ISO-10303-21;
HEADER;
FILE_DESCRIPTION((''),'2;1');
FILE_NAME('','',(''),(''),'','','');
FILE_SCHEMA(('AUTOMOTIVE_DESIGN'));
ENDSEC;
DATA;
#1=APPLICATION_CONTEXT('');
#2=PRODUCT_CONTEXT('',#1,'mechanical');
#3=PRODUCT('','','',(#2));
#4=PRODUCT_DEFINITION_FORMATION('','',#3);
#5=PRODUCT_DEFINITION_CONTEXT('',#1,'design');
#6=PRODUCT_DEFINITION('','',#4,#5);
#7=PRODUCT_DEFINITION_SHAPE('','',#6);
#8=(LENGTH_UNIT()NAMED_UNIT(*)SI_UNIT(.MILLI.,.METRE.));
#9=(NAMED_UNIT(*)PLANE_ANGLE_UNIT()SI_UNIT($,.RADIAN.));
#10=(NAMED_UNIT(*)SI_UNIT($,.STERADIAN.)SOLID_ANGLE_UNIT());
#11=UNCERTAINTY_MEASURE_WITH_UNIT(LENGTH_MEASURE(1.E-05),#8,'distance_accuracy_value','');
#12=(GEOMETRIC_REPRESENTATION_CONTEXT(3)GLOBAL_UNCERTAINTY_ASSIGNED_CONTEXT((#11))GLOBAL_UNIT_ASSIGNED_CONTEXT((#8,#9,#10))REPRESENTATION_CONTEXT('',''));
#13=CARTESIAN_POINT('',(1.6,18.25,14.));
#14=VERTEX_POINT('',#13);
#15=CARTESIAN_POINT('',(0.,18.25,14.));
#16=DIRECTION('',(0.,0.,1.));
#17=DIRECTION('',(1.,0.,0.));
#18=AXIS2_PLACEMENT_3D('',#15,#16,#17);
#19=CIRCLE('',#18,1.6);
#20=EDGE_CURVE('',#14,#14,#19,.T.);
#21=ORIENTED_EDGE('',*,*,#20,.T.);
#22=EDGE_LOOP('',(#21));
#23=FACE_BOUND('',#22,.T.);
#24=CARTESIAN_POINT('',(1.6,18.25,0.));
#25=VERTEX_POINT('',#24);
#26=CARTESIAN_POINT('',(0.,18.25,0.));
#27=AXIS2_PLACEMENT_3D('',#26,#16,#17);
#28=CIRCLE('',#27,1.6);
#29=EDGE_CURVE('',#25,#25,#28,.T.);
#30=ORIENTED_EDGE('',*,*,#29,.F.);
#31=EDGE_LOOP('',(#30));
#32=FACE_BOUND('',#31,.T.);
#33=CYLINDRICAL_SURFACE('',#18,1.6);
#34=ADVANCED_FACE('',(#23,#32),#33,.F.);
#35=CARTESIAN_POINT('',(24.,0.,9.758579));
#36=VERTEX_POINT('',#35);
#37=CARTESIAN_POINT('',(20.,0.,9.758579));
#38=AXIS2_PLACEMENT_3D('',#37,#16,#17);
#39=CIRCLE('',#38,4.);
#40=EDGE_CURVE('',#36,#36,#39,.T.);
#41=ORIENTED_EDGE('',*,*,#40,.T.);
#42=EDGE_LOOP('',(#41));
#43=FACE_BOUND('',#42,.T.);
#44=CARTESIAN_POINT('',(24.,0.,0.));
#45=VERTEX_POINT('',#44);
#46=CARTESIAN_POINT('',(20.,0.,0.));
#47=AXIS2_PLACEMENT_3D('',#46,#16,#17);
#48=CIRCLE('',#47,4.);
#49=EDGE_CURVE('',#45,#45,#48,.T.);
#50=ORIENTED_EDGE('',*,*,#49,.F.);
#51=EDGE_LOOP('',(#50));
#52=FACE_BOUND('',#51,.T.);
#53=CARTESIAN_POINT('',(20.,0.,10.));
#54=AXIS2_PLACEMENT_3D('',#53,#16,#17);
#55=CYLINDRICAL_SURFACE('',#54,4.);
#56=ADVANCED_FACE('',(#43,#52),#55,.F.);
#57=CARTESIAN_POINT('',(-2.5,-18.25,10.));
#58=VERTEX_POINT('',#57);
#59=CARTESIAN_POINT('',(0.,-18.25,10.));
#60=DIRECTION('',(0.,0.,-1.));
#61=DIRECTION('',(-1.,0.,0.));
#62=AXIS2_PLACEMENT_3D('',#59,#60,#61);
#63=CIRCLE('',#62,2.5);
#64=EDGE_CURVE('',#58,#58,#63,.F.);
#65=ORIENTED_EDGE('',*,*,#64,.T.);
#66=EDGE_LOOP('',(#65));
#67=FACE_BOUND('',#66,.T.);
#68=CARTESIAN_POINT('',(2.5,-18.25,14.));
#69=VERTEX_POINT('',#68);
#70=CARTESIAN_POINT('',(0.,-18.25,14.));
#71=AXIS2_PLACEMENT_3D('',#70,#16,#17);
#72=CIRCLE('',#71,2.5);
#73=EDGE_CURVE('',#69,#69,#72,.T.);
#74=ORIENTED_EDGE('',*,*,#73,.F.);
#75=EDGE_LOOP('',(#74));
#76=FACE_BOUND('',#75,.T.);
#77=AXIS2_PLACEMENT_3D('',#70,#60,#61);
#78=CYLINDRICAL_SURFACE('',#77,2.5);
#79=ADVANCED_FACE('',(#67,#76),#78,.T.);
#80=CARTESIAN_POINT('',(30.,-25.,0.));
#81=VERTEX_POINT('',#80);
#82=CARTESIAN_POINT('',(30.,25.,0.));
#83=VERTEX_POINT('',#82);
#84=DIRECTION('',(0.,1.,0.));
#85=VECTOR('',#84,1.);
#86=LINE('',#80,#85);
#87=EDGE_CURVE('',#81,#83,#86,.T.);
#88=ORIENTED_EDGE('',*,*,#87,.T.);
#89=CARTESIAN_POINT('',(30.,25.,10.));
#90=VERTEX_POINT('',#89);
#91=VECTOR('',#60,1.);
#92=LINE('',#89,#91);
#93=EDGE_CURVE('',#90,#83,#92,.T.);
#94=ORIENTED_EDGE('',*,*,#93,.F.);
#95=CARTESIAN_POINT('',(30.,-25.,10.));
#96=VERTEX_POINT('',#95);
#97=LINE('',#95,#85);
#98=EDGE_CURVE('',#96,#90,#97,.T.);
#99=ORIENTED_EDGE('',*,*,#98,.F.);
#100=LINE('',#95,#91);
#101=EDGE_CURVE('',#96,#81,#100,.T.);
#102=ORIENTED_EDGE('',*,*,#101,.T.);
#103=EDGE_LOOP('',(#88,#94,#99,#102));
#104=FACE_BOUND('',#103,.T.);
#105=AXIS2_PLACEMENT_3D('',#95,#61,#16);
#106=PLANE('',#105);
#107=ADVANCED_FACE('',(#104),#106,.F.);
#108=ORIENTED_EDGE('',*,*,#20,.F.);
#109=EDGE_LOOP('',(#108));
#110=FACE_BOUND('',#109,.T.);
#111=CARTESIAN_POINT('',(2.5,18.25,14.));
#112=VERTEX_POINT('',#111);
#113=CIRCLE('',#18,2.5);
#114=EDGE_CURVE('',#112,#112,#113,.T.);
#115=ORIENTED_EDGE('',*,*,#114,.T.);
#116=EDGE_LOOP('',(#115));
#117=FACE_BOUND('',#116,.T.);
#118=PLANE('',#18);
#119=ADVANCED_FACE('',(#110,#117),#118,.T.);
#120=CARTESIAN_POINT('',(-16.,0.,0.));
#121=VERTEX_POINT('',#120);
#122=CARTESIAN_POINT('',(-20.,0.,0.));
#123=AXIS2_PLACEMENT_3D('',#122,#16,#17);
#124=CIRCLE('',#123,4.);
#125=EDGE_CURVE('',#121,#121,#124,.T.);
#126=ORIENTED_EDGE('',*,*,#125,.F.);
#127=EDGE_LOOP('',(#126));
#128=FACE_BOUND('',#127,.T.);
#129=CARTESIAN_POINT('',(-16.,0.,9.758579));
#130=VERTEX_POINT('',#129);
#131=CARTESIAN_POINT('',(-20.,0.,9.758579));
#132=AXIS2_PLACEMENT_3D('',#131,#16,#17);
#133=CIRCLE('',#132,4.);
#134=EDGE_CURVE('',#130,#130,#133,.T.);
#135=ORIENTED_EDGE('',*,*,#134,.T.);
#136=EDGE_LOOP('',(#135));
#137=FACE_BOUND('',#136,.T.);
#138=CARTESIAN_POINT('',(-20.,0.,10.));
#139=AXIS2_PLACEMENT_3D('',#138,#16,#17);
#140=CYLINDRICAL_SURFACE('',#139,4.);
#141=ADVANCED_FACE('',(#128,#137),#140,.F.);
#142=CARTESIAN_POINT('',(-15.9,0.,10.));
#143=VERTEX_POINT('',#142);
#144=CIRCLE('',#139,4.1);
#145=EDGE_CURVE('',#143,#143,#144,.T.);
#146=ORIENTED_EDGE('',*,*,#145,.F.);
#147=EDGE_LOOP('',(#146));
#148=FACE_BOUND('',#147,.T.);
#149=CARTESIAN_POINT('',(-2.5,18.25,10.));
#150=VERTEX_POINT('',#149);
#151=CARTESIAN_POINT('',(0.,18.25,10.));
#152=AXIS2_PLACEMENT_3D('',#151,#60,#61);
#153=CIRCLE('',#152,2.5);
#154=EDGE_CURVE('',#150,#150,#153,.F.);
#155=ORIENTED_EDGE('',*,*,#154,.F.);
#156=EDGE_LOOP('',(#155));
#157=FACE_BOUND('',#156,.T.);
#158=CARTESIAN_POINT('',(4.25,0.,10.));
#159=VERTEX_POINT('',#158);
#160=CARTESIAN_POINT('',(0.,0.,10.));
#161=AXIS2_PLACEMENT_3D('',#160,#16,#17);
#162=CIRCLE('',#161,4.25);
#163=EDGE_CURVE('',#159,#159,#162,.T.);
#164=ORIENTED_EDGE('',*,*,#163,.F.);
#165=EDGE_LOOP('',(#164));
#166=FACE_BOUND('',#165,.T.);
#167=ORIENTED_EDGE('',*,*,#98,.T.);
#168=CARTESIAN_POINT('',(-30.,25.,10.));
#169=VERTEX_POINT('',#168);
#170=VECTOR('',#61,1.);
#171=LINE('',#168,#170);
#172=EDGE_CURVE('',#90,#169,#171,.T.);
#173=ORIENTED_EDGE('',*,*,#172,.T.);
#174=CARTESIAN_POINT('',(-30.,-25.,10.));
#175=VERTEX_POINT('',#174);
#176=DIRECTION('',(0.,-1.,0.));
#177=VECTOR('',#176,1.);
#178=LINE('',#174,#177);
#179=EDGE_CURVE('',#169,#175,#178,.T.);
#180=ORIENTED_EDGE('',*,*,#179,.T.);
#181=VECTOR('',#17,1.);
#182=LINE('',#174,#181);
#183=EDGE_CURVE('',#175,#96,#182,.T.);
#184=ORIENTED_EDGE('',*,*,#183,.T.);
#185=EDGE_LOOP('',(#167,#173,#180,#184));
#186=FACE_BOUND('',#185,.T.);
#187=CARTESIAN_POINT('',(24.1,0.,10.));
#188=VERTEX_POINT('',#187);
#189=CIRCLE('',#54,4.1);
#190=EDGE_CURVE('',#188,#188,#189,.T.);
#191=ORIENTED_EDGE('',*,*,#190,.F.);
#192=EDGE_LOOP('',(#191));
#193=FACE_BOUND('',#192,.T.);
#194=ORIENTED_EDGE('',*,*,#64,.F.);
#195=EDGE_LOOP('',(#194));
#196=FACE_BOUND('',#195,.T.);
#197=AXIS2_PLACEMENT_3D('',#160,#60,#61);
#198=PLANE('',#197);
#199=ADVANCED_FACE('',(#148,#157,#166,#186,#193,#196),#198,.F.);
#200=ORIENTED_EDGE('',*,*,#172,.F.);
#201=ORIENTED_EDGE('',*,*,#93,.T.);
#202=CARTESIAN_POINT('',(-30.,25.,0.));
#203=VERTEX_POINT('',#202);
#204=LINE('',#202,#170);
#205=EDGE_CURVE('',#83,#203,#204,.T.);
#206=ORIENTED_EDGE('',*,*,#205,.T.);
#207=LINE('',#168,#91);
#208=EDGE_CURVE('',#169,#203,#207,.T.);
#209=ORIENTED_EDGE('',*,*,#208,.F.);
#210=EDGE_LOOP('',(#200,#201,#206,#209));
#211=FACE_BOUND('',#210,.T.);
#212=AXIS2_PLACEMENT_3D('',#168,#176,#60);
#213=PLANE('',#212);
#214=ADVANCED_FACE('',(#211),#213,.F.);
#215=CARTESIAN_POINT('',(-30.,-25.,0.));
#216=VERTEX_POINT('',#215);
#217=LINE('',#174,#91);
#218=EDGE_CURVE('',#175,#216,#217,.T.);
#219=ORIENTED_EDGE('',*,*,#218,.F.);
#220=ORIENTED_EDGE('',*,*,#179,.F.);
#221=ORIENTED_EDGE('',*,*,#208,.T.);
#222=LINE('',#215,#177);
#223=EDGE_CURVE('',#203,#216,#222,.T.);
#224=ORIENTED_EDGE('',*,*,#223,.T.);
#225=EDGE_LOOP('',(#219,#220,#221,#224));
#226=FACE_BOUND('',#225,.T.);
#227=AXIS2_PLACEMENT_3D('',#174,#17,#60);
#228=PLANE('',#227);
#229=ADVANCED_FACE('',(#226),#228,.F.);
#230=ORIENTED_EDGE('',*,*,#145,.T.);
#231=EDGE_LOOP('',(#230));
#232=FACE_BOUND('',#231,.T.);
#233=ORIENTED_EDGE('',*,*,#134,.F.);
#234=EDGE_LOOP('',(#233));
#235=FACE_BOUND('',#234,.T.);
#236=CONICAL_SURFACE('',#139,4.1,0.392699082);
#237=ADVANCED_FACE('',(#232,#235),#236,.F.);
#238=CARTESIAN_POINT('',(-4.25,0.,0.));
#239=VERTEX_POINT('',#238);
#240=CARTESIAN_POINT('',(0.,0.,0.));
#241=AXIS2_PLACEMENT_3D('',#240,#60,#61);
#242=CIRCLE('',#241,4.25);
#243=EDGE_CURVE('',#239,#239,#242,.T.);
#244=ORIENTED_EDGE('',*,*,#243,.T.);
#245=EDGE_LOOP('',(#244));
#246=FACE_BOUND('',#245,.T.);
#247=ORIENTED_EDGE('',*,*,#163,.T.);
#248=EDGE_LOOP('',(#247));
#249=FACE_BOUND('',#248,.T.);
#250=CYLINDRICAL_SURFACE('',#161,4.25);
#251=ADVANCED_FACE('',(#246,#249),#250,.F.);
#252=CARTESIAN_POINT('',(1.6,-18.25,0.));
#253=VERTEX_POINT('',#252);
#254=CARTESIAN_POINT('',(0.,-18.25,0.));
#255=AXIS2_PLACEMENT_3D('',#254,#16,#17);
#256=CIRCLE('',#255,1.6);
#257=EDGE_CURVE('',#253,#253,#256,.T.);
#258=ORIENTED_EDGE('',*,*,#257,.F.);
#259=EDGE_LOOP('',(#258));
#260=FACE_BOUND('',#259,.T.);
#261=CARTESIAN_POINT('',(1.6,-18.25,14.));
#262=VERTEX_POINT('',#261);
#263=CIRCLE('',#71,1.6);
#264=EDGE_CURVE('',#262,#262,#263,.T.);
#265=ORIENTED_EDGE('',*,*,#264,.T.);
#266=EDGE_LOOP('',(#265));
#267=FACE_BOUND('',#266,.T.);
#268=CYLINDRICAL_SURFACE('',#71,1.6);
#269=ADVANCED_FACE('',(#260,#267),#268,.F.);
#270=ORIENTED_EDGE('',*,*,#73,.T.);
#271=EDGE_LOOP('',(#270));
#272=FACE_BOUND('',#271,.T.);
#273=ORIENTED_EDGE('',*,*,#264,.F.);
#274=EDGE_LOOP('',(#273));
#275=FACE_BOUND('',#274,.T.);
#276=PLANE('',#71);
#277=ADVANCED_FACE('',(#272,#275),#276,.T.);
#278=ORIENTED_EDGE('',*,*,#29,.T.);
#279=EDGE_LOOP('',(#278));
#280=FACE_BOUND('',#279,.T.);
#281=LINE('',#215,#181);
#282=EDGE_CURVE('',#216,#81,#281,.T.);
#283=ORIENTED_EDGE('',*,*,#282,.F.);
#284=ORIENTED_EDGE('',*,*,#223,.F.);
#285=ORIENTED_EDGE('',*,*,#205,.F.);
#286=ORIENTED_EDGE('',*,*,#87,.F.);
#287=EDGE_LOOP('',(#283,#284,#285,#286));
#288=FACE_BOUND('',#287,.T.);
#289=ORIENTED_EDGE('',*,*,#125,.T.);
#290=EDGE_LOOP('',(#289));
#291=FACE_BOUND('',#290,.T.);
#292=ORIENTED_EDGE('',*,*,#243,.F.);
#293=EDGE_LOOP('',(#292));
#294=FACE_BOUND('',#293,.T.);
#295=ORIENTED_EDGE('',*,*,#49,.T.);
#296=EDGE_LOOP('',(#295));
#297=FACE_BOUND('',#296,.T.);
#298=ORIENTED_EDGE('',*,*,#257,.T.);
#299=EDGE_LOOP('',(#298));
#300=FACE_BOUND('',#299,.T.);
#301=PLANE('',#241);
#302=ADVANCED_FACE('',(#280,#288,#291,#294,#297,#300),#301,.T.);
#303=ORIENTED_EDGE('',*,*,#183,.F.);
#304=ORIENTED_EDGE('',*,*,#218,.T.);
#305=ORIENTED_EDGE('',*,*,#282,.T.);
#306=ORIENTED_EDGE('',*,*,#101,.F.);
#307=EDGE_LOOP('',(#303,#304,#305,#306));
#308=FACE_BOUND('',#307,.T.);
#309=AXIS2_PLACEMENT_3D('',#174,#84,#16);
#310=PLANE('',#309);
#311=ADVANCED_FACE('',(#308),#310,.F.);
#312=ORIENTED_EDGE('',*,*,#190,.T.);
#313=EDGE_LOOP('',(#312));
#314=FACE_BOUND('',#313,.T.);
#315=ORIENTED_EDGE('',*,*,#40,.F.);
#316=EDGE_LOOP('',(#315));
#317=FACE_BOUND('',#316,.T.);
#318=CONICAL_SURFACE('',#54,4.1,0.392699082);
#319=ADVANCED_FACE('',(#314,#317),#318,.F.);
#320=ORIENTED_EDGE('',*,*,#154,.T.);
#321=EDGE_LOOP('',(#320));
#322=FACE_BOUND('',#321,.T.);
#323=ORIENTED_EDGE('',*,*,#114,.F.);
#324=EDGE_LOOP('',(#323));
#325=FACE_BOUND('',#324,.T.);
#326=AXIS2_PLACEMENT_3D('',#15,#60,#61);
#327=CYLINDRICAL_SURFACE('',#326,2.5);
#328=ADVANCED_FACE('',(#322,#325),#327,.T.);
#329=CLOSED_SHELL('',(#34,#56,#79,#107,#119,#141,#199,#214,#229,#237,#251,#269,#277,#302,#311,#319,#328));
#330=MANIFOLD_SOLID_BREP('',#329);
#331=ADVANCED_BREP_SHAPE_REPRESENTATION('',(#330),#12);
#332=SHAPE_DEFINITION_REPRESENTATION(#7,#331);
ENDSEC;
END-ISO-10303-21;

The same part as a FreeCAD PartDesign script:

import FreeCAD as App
import Part
import Sketcher

V = App.Vector
Q = App.Units.Quantity

doc = App.newDocument("Part")
body = doc.addObject("PartDesign::Body", "Body")

# Sketch on XY plane
sketch1 = body.newObject("Sketcher::SketchObject", "Sketch")
sketch1.AttachmentSupport = (doc.getObject("XY_Plane"), [""])
sketch1.MapMode = "FlatFace"
sketch1.addGeometry([
    Part.LineSegment(V(-30, 25, 0), V(-30, -25, 0)),
    Part.LineSegment(V(-30, -25, 0), V(30, -25, 0)),
    Part.LineSegment(V(30, -25, 0), V(30, 25, 0)),
    Part.LineSegment(V(30, 25, 0), V(-30, 25, 0)),
], False)
sketch1.addConstraint([
    Sketcher.Constraint("Coincident", 0, 2, 1, 1),
    Sketcher.Constraint("Coincident", 1, 2, 2, 1),
    Sketcher.Constraint("Coincident", 2, 2, 3, 1),
    Sketcher.Constraint("Coincident", 3, 2, 0, 1),
    Sketcher.Constraint("Vertical", 0),
    Sketcher.Constraint("Horizontal", 1),
    Sketcher.Constraint("Vertical", 2),
    Sketcher.Constraint("Horizontal", 3),
    Sketcher.Constraint("Symmetric", 0, 2, 2, 2, -1, 1),
    Sketcher.Constraint("DistanceX", 1, 1, 1, 2, Q("60 mm")),
    Sketcher.Constraint("DistanceY", 0, 2, 0, 1, Q("50 mm")),
])
pad1 = body.newObject("PartDesign::Pad", "Pad")
pad1.Profile = sketch1
pad1.Length = 10

# Sketch on XY plane
sketch2 = body.newObject("Sketcher::SketchObject", "Sketch001")
sketch2.AttachmentSupport = (doc.getObject("XY_Plane"), [""])
sketch2.MapMode = "FlatFace"
sketch2.AttachmentOffset = App.Placement(V(0, 0, 10), App.Rotation())
sketch2.addGeometry(Part.Circle(V(0, 0, 0), V(0, 0, 1), 4.2), False)
sketch2.addConstraint([
    Sketcher.Constraint("Coincident", 0, 3, -1, 1),
    Sketcher.Constraint("Diameter", 0, Q("8.5 mm")),
])
doc.recompute()
hole = body.newObject("PartDesign::Hole", "Hole")
hole.Profile = sketch2
hole.ThreadType = "None"
hole.Diameter = 8.5
hole.DepthType = "Dimension"
hole.Depth = 20
hole.DrillPoint = "Flat"

# Sketch on XY plane
sketch3 = body.newObject("Sketcher::SketchObject", "Sketch002")
sketch3.AttachmentSupport = (doc.getObject("XY_Plane"), [""])
sketch3.MapMode = "FlatFace"
sketch3.AttachmentOffset = App.Placement(V(0, 0, 10), App.Rotation())
sketch3.addGeometry([
    Part.Circle(V(20, 0, 0), V(0, 0, 1), 4),
    Part.Circle(V(-20, 0, 0), V(0, 0, 1), 4),
], False)
sketch3.addConstraint([
    Sketcher.Constraint("Equal", 0, 1),
    Sketcher.Constraint("Symmetric", 0, 3, 1, 3, -1, 1),
    Sketcher.Constraint("PointOnObject", 0, 3, -1),
    Sketcher.Constraint("Diameter", 0, Q("8 mm")),
    Sketcher.Constraint("DistanceX", -1, 1, 0, 3, Q("20 mm")),
])
doc.recompute()
hole2 = body.newObject("PartDesign::Hole", "Hole001")
hole2.Profile = sketch3
hole2.ThreadType = "None"
hole2.Diameter = 8
hole2.DepthType = "ThroughAll"
hole2.HoleCutType = "Countersink"
hole2.HoleCutDiameter = 8.2
hole2.HoleCutCountersinkAngle = 45

# Sketch on XY plane
sketch4 = body.newObject("Sketcher::SketchObject", "Sketch003")
sketch4.AttachmentSupport = (doc.getObject("XY_Plane"), [""])
sketch4.MapMode = "FlatFace"
sketch4.AttachmentOffset = App.Placement(V(0, 0, 10), App.Rotation())
sketch4.addGeometry([
    Part.Circle(V(0, 18.2, 0), V(0, 0, 1), 2.5),
    Part.Circle(V(0, -18.2, 0), V(0, 0, 1), 2.5),
], False)
sketch4.addConstraint([
    Sketcher.Constraint("Equal", 0, 1),
    Sketcher.Constraint("Symmetric", 0, 3, 1, 3, -1, 1),
    Sketcher.Constraint("PointOnObject", 0, 3, -2),
    Sketcher.Constraint("Diameter", 0, Q("5 mm")),
    Sketcher.Constraint("DistanceY", 1, 3, 0, 3, Q("36.5 mm")),
])
pad2 = body.newObject("PartDesign::Pad", "Pad001")
pad2.Profile = sketch4
pad2.Length = 4

# Sketch on XY plane
sketch5 = body.newObject("Sketcher::SketchObject", "Sketch004")
sketch5.AttachmentSupport = (doc.getObject("XY_Plane"), [""])
sketch5.MapMode = "FlatFace"
sketch5.AttachmentOffset = App.Placement(V(0, 0, 14), App.Rotation())
sketch5.addGeometry([
    Part.Circle(V(0, 18.2, 0), V(0, 0, 1), 1.6),
    Part.Circle(V(0, -18.2, 0), V(0, 0, 1), 1.6),
], False)
sketch5.addConstraint([
    Sketcher.Constraint("Equal", 0, 1),
    Sketcher.Constraint("Symmetric", 0, 3, 1, 3, -1, 1),
    Sketcher.Constraint("PointOnObject", 0, 3, -2),
    Sketcher.Constraint("Diameter", 0, Q("3.2 mm")),
    Sketcher.Constraint("DistanceY", 1, 3, 0, 3, Q("36.5 mm")),
])
doc.recompute()
hole3 = body.newObject("PartDesign::Hole", "Hole002")
hole3.Profile = sketch5
hole3.ThreadType = "None"
hole3.Diameter = 3.2
hole3.DepthType = "ThroughAll"

doc.recompute()
